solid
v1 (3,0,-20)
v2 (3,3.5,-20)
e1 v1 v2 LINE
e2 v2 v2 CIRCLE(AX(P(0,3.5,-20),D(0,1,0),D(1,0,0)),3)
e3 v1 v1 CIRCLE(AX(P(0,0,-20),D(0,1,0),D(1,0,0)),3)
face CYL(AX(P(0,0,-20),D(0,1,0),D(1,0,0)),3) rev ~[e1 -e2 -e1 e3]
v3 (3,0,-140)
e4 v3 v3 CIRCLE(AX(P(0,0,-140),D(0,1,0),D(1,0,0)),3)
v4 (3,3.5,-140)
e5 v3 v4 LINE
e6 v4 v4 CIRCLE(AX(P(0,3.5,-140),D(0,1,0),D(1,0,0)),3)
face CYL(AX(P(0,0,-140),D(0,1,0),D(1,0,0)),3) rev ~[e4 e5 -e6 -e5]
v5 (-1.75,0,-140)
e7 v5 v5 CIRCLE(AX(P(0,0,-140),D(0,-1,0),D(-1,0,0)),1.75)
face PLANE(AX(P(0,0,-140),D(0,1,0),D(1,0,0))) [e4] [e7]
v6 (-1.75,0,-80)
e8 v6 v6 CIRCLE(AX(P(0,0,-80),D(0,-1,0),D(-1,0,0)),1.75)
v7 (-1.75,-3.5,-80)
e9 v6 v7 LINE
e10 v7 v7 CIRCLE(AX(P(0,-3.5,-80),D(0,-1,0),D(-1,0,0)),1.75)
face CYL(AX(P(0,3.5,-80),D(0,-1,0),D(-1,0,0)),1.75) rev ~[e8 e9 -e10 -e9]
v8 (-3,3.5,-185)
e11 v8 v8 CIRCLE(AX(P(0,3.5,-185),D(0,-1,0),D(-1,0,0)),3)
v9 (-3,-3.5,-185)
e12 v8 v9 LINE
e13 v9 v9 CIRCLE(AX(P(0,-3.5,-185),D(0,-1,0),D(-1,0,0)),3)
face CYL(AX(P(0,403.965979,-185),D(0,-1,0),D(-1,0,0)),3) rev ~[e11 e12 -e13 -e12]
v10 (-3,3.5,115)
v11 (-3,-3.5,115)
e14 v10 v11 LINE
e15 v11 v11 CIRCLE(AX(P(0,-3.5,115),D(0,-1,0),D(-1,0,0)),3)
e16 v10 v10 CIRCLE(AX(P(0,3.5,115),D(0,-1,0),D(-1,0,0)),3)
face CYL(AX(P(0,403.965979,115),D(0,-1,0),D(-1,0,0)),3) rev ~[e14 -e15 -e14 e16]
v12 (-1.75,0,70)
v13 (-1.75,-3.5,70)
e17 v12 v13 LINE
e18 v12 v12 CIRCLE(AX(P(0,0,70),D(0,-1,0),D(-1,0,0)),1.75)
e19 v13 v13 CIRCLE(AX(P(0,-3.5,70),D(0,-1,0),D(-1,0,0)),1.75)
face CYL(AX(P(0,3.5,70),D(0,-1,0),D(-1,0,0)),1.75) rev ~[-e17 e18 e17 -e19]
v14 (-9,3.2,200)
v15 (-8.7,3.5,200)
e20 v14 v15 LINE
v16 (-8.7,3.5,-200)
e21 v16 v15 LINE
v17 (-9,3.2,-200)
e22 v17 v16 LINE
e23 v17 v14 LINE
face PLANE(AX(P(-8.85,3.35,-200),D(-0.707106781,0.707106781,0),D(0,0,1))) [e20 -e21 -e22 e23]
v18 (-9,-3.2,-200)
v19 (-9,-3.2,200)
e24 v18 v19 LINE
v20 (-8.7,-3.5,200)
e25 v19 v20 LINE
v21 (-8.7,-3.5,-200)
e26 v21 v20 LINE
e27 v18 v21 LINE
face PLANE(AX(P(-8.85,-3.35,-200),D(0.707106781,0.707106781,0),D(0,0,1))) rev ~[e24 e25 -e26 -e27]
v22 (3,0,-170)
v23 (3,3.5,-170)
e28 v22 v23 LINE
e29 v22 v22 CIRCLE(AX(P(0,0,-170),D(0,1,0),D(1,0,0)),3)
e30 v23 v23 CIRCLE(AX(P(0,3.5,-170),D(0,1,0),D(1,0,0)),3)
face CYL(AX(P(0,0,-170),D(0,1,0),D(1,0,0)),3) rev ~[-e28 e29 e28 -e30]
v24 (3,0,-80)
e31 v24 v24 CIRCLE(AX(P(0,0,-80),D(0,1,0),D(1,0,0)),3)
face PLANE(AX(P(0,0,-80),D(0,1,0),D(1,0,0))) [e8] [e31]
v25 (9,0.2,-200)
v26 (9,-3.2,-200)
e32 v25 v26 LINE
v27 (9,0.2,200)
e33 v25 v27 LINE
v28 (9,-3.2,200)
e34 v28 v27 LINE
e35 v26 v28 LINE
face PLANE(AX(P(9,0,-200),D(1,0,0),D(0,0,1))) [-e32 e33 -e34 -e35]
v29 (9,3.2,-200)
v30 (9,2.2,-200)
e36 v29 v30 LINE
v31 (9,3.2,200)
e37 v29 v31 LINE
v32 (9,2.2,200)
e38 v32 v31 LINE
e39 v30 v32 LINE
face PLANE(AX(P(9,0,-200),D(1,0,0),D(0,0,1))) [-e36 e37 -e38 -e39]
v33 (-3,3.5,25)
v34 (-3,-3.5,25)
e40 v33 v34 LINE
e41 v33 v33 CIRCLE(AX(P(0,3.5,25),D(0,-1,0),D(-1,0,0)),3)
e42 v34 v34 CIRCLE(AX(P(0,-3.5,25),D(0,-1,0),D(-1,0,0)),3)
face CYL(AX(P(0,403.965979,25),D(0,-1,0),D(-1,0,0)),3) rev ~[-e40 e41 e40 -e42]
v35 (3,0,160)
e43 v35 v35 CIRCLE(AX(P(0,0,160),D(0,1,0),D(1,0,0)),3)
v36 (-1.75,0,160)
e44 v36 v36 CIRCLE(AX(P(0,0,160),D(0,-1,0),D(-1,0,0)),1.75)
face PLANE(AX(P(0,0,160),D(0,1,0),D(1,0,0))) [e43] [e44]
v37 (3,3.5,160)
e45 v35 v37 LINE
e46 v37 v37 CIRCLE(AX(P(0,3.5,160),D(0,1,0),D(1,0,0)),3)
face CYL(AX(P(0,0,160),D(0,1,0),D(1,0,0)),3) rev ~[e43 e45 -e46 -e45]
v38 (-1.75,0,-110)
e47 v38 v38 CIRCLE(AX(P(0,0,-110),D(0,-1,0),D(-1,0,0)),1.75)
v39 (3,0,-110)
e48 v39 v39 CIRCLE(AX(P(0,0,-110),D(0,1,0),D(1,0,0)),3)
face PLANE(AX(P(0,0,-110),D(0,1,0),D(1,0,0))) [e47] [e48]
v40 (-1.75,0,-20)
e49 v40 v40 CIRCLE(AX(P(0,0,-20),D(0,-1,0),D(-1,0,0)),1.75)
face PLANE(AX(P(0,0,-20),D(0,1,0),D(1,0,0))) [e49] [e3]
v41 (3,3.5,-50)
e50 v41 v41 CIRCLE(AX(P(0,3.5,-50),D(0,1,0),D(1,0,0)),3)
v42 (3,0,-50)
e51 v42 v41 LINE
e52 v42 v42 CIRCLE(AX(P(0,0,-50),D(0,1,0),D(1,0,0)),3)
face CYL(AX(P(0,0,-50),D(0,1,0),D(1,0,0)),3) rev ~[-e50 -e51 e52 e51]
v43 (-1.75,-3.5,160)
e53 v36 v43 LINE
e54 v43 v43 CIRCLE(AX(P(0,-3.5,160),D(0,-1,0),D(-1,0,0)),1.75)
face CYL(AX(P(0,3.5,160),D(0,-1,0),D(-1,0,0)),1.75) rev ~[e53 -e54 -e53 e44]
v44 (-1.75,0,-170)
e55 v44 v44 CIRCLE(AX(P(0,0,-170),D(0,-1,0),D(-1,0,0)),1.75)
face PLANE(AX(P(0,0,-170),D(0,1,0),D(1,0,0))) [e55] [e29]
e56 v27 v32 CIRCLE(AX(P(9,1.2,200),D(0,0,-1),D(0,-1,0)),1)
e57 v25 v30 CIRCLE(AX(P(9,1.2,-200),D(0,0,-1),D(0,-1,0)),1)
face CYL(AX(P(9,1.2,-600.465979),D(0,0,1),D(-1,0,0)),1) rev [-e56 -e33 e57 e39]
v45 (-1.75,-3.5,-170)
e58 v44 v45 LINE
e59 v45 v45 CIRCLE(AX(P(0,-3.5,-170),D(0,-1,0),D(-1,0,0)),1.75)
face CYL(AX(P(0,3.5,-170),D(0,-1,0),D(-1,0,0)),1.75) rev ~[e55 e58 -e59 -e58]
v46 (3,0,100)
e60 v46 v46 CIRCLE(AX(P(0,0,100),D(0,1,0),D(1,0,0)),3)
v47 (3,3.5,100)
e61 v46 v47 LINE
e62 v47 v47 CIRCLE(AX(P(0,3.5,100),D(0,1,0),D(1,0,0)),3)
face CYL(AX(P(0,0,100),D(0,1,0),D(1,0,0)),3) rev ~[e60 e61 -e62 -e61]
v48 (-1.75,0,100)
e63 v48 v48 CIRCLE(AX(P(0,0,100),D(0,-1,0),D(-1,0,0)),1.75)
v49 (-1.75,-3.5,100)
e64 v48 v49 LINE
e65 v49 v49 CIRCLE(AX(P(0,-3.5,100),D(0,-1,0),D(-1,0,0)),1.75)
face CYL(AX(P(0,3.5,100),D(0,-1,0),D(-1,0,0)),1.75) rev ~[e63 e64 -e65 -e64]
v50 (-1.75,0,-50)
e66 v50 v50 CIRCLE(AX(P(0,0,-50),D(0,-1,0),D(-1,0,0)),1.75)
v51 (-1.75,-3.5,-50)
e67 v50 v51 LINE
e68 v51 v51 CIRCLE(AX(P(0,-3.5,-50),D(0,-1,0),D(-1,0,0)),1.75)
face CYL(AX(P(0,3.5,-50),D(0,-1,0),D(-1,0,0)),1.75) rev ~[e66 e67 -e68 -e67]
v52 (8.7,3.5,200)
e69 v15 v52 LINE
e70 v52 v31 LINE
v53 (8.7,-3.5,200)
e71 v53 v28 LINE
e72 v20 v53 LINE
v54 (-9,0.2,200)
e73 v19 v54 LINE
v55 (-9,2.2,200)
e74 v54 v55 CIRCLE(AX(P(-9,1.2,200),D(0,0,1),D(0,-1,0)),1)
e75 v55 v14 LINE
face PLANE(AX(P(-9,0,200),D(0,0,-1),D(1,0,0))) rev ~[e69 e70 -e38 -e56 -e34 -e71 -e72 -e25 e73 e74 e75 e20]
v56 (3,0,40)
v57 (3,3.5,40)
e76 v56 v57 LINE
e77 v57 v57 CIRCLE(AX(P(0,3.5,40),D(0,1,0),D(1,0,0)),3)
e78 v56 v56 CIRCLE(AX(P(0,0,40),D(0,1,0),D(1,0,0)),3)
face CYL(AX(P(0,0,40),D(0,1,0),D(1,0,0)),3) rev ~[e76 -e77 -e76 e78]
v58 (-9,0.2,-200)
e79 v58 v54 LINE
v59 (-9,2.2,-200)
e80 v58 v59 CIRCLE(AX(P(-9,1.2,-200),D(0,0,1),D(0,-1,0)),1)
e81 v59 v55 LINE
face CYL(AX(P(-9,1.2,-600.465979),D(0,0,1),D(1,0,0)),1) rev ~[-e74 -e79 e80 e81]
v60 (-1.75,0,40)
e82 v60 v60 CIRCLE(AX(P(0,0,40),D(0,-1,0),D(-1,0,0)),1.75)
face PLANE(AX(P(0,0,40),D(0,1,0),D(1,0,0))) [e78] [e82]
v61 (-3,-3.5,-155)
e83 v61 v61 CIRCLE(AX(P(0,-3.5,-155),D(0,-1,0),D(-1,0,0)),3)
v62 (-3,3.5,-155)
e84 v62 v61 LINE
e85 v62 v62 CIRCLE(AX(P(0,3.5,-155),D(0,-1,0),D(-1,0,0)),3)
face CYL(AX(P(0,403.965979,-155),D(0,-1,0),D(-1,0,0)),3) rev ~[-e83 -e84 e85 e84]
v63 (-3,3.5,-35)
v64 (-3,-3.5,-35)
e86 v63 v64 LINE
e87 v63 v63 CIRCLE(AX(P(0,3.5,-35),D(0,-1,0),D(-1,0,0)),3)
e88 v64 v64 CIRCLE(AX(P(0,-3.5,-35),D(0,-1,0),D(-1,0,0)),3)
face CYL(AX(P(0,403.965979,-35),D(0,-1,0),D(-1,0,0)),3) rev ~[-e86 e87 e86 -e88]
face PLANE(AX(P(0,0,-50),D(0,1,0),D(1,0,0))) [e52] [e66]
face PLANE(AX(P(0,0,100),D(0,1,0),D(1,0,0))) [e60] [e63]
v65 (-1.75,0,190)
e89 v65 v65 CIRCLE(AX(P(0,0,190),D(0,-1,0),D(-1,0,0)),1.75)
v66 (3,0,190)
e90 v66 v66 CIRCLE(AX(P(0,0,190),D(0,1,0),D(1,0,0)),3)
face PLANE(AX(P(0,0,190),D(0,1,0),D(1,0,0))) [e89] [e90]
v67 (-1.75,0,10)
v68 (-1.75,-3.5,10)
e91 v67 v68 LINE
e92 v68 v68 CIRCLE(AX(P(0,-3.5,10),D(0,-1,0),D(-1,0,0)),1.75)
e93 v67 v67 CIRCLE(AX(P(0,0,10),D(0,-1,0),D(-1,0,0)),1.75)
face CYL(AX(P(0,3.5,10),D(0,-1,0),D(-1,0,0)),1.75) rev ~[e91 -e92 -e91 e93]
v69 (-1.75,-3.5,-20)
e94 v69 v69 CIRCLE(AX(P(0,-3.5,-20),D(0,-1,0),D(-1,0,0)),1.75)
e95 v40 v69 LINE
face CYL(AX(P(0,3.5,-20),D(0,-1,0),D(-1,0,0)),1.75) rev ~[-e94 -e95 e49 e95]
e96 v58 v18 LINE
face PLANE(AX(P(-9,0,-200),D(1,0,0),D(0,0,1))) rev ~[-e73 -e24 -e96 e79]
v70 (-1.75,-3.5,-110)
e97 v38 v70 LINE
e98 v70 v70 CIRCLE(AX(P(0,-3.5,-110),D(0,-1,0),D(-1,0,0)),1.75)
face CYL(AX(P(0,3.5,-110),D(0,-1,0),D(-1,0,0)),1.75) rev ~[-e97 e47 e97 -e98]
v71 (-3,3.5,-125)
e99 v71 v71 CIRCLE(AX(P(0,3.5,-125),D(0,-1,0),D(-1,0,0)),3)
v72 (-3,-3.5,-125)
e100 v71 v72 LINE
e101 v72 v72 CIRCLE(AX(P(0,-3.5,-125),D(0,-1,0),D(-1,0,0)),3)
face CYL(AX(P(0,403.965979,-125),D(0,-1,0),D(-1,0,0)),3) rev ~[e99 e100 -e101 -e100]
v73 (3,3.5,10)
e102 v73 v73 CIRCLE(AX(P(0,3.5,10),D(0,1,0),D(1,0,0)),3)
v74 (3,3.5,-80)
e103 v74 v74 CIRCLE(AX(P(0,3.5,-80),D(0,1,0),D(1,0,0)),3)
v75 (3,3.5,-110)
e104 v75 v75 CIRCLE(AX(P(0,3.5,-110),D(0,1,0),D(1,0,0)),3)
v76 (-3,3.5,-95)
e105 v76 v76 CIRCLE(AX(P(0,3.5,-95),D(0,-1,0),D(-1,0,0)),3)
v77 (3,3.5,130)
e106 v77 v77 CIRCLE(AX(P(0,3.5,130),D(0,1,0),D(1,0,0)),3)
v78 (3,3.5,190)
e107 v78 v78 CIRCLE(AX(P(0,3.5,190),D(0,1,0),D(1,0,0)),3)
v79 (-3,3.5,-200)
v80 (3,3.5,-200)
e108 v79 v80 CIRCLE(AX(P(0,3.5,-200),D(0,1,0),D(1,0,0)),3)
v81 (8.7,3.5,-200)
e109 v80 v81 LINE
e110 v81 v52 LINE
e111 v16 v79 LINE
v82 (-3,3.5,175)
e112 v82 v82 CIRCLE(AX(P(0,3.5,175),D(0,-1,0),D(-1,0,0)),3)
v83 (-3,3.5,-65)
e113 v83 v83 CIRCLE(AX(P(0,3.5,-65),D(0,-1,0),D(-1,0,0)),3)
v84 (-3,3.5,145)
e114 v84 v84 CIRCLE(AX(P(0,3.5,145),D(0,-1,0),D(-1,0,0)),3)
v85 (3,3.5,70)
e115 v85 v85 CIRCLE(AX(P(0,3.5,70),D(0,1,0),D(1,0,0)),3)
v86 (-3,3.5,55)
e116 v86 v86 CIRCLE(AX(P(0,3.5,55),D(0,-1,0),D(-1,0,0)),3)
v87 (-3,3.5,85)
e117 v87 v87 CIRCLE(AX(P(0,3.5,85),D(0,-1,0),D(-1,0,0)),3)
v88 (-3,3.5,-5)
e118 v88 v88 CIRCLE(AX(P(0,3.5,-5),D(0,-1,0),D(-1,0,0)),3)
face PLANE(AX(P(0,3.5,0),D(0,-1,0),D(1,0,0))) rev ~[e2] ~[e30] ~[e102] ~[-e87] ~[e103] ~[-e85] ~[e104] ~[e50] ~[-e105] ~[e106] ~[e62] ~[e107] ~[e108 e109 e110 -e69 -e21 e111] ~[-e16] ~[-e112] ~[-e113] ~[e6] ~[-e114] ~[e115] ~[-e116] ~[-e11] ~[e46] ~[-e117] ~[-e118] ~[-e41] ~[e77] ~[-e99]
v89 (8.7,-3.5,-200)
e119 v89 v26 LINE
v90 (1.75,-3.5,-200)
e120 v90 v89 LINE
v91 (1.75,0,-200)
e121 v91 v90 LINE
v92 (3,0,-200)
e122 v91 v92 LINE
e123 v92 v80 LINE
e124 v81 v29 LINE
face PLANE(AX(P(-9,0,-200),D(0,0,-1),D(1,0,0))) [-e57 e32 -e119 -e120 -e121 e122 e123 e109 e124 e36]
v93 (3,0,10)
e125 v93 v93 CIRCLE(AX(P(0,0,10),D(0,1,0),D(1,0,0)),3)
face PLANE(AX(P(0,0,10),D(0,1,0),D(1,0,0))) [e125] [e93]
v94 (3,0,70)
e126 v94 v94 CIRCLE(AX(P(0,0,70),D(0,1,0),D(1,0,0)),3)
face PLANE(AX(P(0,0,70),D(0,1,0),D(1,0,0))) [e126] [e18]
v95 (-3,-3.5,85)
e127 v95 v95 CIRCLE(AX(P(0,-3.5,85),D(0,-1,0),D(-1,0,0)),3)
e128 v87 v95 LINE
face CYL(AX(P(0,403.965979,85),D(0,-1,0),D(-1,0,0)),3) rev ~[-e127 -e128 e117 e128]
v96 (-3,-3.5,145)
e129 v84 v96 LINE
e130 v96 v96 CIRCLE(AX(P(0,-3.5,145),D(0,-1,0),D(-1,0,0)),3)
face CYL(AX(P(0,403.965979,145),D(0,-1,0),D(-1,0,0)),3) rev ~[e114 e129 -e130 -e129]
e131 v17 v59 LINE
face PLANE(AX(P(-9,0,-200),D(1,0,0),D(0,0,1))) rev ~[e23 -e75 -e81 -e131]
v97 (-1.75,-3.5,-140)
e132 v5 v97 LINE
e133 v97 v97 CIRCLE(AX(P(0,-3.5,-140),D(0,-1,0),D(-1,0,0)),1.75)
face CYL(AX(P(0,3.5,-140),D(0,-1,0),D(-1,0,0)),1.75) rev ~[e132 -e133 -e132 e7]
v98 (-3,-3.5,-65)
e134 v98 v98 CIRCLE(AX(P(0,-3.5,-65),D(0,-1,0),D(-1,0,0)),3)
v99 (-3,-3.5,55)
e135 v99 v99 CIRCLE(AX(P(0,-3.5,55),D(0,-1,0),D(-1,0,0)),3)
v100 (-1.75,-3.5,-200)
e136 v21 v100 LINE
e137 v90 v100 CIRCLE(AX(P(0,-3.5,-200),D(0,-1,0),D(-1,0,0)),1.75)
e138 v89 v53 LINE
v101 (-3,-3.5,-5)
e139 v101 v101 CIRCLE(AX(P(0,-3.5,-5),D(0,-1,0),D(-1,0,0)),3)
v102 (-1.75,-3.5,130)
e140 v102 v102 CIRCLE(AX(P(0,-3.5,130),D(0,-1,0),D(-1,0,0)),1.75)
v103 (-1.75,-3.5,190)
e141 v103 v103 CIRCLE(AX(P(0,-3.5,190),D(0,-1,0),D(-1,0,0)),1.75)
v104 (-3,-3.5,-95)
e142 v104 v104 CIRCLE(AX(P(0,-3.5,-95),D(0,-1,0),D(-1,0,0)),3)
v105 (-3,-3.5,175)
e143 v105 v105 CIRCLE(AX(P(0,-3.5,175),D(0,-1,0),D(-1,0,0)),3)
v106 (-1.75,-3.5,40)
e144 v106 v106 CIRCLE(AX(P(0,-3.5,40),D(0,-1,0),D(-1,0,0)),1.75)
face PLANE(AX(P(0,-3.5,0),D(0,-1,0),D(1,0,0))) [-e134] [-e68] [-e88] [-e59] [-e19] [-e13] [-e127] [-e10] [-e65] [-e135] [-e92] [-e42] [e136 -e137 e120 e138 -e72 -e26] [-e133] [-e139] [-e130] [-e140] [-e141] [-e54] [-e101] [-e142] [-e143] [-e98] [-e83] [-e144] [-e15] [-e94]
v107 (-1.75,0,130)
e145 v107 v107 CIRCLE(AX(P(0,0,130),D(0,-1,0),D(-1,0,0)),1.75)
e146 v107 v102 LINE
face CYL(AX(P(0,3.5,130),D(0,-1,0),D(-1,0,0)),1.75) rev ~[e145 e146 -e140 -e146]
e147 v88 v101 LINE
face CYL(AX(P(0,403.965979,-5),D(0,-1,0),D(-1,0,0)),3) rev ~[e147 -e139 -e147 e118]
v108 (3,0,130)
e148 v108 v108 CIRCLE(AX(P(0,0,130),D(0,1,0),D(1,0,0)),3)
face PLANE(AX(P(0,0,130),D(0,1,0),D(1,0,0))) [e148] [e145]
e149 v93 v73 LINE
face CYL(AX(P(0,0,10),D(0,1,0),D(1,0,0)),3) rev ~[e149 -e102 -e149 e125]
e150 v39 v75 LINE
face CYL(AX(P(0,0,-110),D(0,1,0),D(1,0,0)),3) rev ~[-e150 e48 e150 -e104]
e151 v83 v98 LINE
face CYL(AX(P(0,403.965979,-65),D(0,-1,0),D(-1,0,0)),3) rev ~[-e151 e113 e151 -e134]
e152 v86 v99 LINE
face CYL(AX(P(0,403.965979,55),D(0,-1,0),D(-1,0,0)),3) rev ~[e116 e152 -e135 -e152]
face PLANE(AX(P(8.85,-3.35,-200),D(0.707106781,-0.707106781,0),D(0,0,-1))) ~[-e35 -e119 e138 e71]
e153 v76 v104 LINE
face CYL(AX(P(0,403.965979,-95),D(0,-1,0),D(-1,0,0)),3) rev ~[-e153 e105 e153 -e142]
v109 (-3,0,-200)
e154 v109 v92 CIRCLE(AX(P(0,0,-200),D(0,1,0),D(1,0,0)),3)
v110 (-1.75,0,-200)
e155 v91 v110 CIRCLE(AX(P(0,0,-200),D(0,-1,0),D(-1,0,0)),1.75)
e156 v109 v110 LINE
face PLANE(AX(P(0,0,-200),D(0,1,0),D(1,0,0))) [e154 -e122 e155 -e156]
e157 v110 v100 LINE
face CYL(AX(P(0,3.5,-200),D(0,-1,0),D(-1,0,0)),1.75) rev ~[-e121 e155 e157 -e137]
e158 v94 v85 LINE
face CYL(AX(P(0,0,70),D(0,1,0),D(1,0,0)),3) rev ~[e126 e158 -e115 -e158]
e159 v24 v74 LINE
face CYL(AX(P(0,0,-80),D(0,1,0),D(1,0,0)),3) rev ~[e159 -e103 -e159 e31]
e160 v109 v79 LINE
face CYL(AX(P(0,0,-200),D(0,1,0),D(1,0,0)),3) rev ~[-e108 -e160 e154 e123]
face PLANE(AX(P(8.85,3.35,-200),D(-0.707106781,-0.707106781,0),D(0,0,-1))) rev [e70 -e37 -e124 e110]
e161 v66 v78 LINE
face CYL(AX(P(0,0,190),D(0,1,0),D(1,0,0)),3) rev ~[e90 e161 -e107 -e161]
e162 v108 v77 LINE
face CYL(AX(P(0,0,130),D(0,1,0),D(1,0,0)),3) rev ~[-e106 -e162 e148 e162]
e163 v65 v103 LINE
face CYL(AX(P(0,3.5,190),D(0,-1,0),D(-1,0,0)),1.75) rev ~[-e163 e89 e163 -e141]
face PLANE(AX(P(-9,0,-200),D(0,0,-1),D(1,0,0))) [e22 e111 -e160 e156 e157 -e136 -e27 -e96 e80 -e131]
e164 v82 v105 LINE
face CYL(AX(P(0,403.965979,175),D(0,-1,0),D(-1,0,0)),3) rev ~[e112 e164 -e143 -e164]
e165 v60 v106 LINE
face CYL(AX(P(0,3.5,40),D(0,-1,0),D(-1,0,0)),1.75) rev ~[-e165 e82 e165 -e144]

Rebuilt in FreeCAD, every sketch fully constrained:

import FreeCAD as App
import Part
import Sketcher
from FreeCAD import Vector


def edges_at(feature, points):
    """Names of the edges that pass closest to the given points."""
    edges = feature.Shape.Edges
    near = lambda p: min(range(len(edges)), key=lambda i: edges[i].distToShape(Part.Vertex(*p))[0])
    return sorted({f"Edge{near(p) + 1}" for p in points})


def add_polygon(sketch, points):
    """Adds a closed chain of lines whose ends are joined by coincident constraints."""
    first, n = sketch.GeometryCount, len(points)
    for a, b in zip(points, points[1:] + points[:1]):
        sketch.addGeometry(Part.LineSegment(App.Vector(*a, 0), App.Vector(*b, 0)), False)
    for i in range(n):
        sketch.addConstraint(Sketcher.Constraint("Coincident", first + i, 2, first + (i + 1) % n, 1))

doc = App.newDocument("Part")
body = doc.addObject("PartDesign::Body", "Body")

sketch1 = doc.addObject("Sketcher::SketchObject", "Sketch")
body.addObject(sketch1)
sketch1.AttachmentSupport = (doc.XZ_Plane, [""])
sketch1.MapMode = "FlatFace"
add_polygon(sketch1, [(-9, 200), (-9, -200), (9, -200), (9, 200)])
sketch1.addConstraint([
    Sketcher.Constraint("Vertical", 0),
    Sketcher.Constraint("Horizontal", 1),
    Sketcher.Constraint("Vertical", 2),
    Sketcher.Constraint("Horizontal", 3),
    Sketcher.Constraint("Symmetric", 0, 2, 2, 2, -1, 1),
    Sketcher.Constraint("DistanceX", 1, 1, 1, 2, 18.0),
    Sketcher.Constraint("DistanceY", 0, 2, 0, 1, 400.0),
])
pad1 = doc.addObject("PartDesign::Pad", "Pad")
body.addObject(pad1)
pad1.Profile = sketch1
pad1.Length = 7
pad1.Midplane = True

sketch2 = doc.addObject("Sketcher::SketchObject", "Sketch001")
body.addObject(sketch2)
sketch2.AttachmentSupport = (doc.XY_Plane, [""])
sketch2.MapMode = "FlatFace"
sketch2.AttachmentOffset = App.Placement(Vector(0, 0, -200), App.Rotation())
sketch2.addGeometry([
    Part.Circle(Vector(8.669077, 4.635654, 0), Vector(0, 0, 1), 1),
    Part.Circle(Vector(-9, 1.2, 0), Vector(0, 0, 1), 1),
], False)
sketch2.addConstraint([
    Sketcher.Constraint("Equal", 0, 1),
    Sketcher.Constraint("Diameter", 0, 2.0),
    Sketcher.Constraint("DistanceX", 1, 3, -1, 1, 9.0),
    Sketcher.Constraint("DistanceY", -1, 1, 1, 3, 1.2),
    Sketcher.Constraint("DistanceX", -1, 1, 0, 3, 8.669077),
    Sketcher.Constraint("DistanceY", -1, 1, 0, 3, 4.635654),
])
doc.recompute()
hole = doc.addObject("PartDesign::Hole", "Hole")
body.addObject(hole)
hole.Profile = sketch2
hole.ThreadType = "None"
hole.Diameter = 2
hole.DepthType = "ThroughAll"
hole.Reversed = True

sketch3 = doc.addObject("Sketcher::SketchObject", "Sketch002")
body.addObject(sketch3)
sketch3.AttachmentSupport = (doc.XZ_Plane, [""])
sketch3.MapMode = "FlatFace"
sketch3.AttachmentOffset = App.Placement(Vector(0, 0, -3.5), App.Rotation())
sketch3.addGeometry(Part.Circle(Vector(0, 175, 0), Vector(0, 0, 1), 3), False)
sketch3.addConstraint([
    Sketcher.Constraint("PointOnObject", 0, 3, -2),
    Sketcher.Constraint("Diameter", 0, 6.0),
    Sketcher.Constraint("DistanceY", -1, 1, 0, 3, 175.0),
])
doc.recompute()
hole2 = doc.addObject("PartDesign::Hole", "Hole001")
body.addObject(hole2)
hole2.Profile = sketch3
hole2.ThreadType = "None"
hole2.Diameter = 6
hole2.DepthType = "ThroughAll"
hole2.Reversed = True

sketch4 = doc.addObject("Sketcher::SketchObject", "Sketch003")
body.addObject(sketch4)
sketch4.AttachmentSupport = (doc.XZ_Plane, [""])
sketch4.MapMode = "FlatFace"
sketch4.AttachmentOffset = App.Placement(Vector(0, 0, -3.5), App.Rotation())
sketch4.addGeometry(Part.Circle(Vector(0, 190, 0), Vector(0, 0, 1), 1.75), False)
sketch4.addConstraint([
    Sketcher.Constraint("PointOnObject", 0, 3, -2),
    Sketcher.Constraint("Diameter", 0, 3.5),
    Sketcher.Constraint("DistanceY", -1, 1, 0, 3, 190.0),
])
doc.recompute()
hole3 = doc.addObject("PartDesign::Hole", "Hole002")
body.addObject(hole3)
hole3.Profile = sketch4
hole3.ThreadType = "None"
hole3.Diameter = 3.5
hole3.DepthType = "ThroughAll"
hole3.HoleCutType = "Counterbore"
hole3.HoleCutDiameter = 6
hole3.HoleCutDepth = 3.5
hole3.Reversed = True
doc.recompute()

linearpattern = doc.addObject("PartDesign::LinearPattern", "LinearPattern")
body.addObject(linearpattern)
linearpattern.Originals = [hole2]
linearpattern.Direction = (doc.Z_Axis, [""])
linearpattern.Mode = "offset"
linearpattern.Offset = 30
linearpattern.Occurrences = 13
linearpattern.Reversed = True
body.Tip = linearpattern
doc.recompute()

linearpattern2 = doc.addObject("PartDesign::LinearPattern", "LinearPattern001")
body.addObject(linearpattern2)
linearpattern2.Originals = [hole3]
linearpattern2.Direction = (doc.Z_Axis, [""])
linearpattern2.Mode = "offset"
linearpattern2.Offset = 30
linearpattern2.Occurrences = 14
linearpattern2.Reversed = True
body.Tip = linearpattern2
doc.recompute()

chamfer = doc.addObject("PartDesign::Chamfer", "Chamfer")
body.addObject(chamfer)
chamfer.Base = (linearpattern2, edges_at(linearpattern2, [
    (9, 3.5, 0),
    (-9, 3.5, 0),
    (9, -3.5, 0),
    (-9, -3.5, 0),
]))
chamfer.Size = 0.3
doc.recompute()

mirrored = doc.addObject("PartDesign::Mirrored", "Mirrored")
body.addObject(mirrored)
mirrored.Originals = [hole]
mirrored.MirrorPlane = (doc.YZ_Plane, [""])
body.Tip = mirrored

doc.recompute()
